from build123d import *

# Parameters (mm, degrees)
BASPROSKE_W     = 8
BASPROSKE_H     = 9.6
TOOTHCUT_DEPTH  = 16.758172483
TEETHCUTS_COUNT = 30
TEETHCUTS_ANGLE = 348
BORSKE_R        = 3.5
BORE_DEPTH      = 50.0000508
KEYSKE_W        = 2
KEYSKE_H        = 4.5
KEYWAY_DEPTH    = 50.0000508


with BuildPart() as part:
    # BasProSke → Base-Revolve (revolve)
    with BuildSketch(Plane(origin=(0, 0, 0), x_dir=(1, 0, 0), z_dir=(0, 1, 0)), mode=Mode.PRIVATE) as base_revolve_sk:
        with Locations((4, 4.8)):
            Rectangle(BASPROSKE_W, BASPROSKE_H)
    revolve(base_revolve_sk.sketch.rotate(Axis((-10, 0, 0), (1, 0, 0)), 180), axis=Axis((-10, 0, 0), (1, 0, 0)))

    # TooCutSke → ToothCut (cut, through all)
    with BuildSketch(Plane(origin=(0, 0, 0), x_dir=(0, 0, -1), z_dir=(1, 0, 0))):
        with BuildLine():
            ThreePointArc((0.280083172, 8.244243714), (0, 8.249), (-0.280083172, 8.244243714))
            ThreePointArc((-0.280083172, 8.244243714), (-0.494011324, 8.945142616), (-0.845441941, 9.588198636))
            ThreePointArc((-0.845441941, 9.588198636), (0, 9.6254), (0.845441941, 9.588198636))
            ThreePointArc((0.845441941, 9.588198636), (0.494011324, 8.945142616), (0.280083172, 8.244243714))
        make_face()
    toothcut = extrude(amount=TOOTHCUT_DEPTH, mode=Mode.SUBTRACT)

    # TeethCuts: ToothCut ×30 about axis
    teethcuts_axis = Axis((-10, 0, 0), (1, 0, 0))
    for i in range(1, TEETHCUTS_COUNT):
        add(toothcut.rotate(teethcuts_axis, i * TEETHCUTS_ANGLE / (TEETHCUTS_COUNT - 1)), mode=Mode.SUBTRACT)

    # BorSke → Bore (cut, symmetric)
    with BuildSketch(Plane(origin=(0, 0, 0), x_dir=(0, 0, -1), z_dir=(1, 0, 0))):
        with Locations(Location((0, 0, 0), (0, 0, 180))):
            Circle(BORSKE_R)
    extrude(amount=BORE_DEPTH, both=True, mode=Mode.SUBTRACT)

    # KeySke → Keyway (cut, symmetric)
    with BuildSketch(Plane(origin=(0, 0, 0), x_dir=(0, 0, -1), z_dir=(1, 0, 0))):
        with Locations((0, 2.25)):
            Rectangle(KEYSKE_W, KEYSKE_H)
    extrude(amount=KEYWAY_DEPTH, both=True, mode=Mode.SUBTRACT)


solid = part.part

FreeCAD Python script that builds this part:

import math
import FreeCAD as App
import Part
import Sketcher
from FreeCAD import Vector
Q = App.Units.Quantity


def add_polygon(sketch, points):
    """Adds a closed chain of lines whose ends are joined by coincident constraints."""
    first, n = sketch.GeometryCount, len(points)
    for a, b in zip(points, points[1:] + points[:1]):
        sketch.addGeometry(Part.LineSegment(App.Vector(*a, 0), App.Vector(*b, 0)), False)
    for i in range(n):
        sketch.addConstraint(Sketcher.Constraint("Coincident", first + i, 2, first + (i + 1) % n, 1))

doc = App.newDocument("Part")
body = doc.addObject("PartDesign::Body", "Body")

# Sketch on XZ plane
sketch1 = doc.addObject("Sketcher::SketchObject", "Sketch")
body.addObject(sketch1)
sketch1.AttachmentSupport = (doc.XZ_Plane, [""])
sketch1.MapMode = "FlatFace"
add_polygon(sketch1, [(0, -10), (0, 0), (8, 0), (8, -10)])  # lines 0-3
sketch1.addConstraint(Sketcher.Constraint("Vertical", 0))
sketch1.addConstraint(Sketcher.Constraint("Horizontal", 1))
sketch1.addConstraint(Sketcher.Constraint("Vertical", 2))
sketch1.addConstraint(Sketcher.Constraint("Horizontal", 3))
sketch1.addConstraint(Sketcher.Constraint("Coincident", 0, 2, -1, 1))
sketch1.addConstraint(Sketcher.Constraint("DistanceX", 1, 1, 1, 2, Q("8 mm")))
sketch1.addConstraint(Sketcher.Constraint("DistanceY", 0, 1, 0, 2, Q("9.6 mm")))
revolution = doc.addObject("PartDesign::Revolution", "Revolution")
body.addObject(revolution)
revolution.Profile = sketch1
revolution.ReferenceAxis = (sketch1, ["H_Axis"])
revolution.Angle = 360

# Sketch on YZ plane
sketch2 = doc.addObject("Sketcher::SketchObject", "Sketch001")
body.addObject(sketch2)
sketch2.AttachmentSupport = (doc.YZ_Plane, [""])
sketch2.MapMode = "FlatFace"
sketch2.addGeometry(Part.ArcOfCircle(Part.Circle(Vector(0, 0, 0), Vector(0, 0, 1), 8.2), math.radians(-1.95), math.radians(1.95)), False)
sketch2.addGeometry(Part.ArcOfCircle(Part.Circle(Vector(7.5, -3.8, 0), Vector(0, 0, 1), 3.6), math.radians(56), math.radians(79)), False)
sketch2.addGeometry(Part.ArcOfCircle(Part.Circle(Vector(0, 0, 0), Vector(0, 0, 1), 9.6), math.radians(-5.04), math.radians(5.04)), False)
sketch2.addGeometry(Part.ArcOfCircle(Part.Circle(Vector(7.5, 3.8, 0), Vector(0, 0, 1), 3.6), math.radians(-79), math.radians(-56)), False)
sketch2.addConstraint(Sketcher.Constraint("Coincident", 0, 1, 1, 2))
sketch2.addConstraint(Sketcher.Constraint("Coincident", 1, 1, 2, 1))
sketch2.addConstraint(Sketcher.Constraint("Coincident", 2, 2, 3, 2))
sketch2.addConstraint(Sketcher.Constraint("Coincident", 3, 1, 0, 2))
sketch2.addConstraint(Sketcher.Constraint("Coincident", 0, 3, -1, 1))
sketch2.addConstraint(Sketcher.Constraint("Coincident", 2, 3, -1, 1))
sketch2.addConstraint(Sketcher.Constraint("Equal", 1, 3))
sketch2.addConstraint(Sketcher.Constraint("Symmetric", 1, 3, 3, 3, -1))
sketch2.addConstraint(Sketcher.Constraint("Radius", 1, Q("3.6 mm")))
sketch2.addConstraint(Sketcher.Constraint("Radius", 0, Q("8.249 mm")))
sketch2.addConstraint(Sketcher.Constraint("Radius", 2, Q("9.6254 mm")))
sketch2.addConstraint(Sketcher.Constraint("DistanceX", -1, 1, 1, 1, Q("9.588199 mm")))
sketch2.addConstraint(Sketcher.Constraint("DistanceX", -1, 1, 1, 3, Q("7.549222 mm")))
pocket1 = doc.addObject("PartDesign::Pocket", "Pocket")
body.addObject(pocket1)
pocket1.Profile = sketch2
pocket1.Type = "ThroughAll"
pocket1.Reversed = True
doc.recompute()

polarpattern = doc.addObject("PartDesign::PolarPattern", "PolarPattern")
body.addObject(polarpattern)
polarpattern.Originals = [pocket1]
polarpattern.Axis = (doc.X_Axis, [""])
polarpattern.Angle = 360
polarpattern.Occurrences = 30
body.Tip = polarpattern

# Sketch on YZ plane
sketch3 = doc.addObject("Sketcher::SketchObject", "Sketch002")
body.addObject(sketch3)
sketch3.AttachmentSupport = (doc.YZ_Plane, [""])
sketch3.MapMode = "FlatFace"
sketch3.addGeometry(Part.Circle(Vector(0, 0, 0), Vector(0, 0, 1), 3.5), False)
sketch3.addConstraint(Sketcher.Constraint("Coincident", 0, 3, -1, 1))
sketch3.addConstraint(Sketcher.Constraint("Diameter", 0, Q("7 mm")))
pocket2 = doc.addObject("PartDesign::Pocket", "Pocket001")
body.addObject(pocket2)
pocket2.Profile = sketch3
pocket2.Length = 100.000102
pocket2.Midplane = True

# Sketch on YZ plane
sketch4 = doc.addObject("Sketcher::SketchObject", "Sketch003")
body.addObject(sketch4)
sketch4.AttachmentSupport = (doc.YZ_Plane, [""])
sketch4.MapMode = "FlatFace"
add_polygon(sketch4, [(4.5, 1), (0, 1), (0, -1), (4.5, -1)])  # lines 0-3
sketch4.addConstraint(Sketcher.Constraint("Horizontal", 0))
sketch4.addConstraint(Sketcher.Constraint("Vertical", 1))
sketch4.addConstraint(Sketcher.Constraint("Horizontal", 2))
sketch4.addConstraint(Sketcher.Constraint("Vertical", 3))
sketch4.addConstraint(Sketcher.Constraint("Symmetric", 0, 2, 1, 2, -1, 1))
sketch4.addConstraint(Sketcher.Constraint("DistanceY", 1, 2, 1, 1, Q("2 mm")))
sketch4.addConstraint(Sketcher.Constraint("DistanceX", 0, 2, 0, 1, Q("4.5 mm")))
pocket3 = doc.addObject("PartDesign::Pocket", "Pocket002")
body.addObject(pocket3)
pocket3.Profile = sketch4
pocket3.Length = 100.000102
pocket3.Midplane = True

doc.recompute()
